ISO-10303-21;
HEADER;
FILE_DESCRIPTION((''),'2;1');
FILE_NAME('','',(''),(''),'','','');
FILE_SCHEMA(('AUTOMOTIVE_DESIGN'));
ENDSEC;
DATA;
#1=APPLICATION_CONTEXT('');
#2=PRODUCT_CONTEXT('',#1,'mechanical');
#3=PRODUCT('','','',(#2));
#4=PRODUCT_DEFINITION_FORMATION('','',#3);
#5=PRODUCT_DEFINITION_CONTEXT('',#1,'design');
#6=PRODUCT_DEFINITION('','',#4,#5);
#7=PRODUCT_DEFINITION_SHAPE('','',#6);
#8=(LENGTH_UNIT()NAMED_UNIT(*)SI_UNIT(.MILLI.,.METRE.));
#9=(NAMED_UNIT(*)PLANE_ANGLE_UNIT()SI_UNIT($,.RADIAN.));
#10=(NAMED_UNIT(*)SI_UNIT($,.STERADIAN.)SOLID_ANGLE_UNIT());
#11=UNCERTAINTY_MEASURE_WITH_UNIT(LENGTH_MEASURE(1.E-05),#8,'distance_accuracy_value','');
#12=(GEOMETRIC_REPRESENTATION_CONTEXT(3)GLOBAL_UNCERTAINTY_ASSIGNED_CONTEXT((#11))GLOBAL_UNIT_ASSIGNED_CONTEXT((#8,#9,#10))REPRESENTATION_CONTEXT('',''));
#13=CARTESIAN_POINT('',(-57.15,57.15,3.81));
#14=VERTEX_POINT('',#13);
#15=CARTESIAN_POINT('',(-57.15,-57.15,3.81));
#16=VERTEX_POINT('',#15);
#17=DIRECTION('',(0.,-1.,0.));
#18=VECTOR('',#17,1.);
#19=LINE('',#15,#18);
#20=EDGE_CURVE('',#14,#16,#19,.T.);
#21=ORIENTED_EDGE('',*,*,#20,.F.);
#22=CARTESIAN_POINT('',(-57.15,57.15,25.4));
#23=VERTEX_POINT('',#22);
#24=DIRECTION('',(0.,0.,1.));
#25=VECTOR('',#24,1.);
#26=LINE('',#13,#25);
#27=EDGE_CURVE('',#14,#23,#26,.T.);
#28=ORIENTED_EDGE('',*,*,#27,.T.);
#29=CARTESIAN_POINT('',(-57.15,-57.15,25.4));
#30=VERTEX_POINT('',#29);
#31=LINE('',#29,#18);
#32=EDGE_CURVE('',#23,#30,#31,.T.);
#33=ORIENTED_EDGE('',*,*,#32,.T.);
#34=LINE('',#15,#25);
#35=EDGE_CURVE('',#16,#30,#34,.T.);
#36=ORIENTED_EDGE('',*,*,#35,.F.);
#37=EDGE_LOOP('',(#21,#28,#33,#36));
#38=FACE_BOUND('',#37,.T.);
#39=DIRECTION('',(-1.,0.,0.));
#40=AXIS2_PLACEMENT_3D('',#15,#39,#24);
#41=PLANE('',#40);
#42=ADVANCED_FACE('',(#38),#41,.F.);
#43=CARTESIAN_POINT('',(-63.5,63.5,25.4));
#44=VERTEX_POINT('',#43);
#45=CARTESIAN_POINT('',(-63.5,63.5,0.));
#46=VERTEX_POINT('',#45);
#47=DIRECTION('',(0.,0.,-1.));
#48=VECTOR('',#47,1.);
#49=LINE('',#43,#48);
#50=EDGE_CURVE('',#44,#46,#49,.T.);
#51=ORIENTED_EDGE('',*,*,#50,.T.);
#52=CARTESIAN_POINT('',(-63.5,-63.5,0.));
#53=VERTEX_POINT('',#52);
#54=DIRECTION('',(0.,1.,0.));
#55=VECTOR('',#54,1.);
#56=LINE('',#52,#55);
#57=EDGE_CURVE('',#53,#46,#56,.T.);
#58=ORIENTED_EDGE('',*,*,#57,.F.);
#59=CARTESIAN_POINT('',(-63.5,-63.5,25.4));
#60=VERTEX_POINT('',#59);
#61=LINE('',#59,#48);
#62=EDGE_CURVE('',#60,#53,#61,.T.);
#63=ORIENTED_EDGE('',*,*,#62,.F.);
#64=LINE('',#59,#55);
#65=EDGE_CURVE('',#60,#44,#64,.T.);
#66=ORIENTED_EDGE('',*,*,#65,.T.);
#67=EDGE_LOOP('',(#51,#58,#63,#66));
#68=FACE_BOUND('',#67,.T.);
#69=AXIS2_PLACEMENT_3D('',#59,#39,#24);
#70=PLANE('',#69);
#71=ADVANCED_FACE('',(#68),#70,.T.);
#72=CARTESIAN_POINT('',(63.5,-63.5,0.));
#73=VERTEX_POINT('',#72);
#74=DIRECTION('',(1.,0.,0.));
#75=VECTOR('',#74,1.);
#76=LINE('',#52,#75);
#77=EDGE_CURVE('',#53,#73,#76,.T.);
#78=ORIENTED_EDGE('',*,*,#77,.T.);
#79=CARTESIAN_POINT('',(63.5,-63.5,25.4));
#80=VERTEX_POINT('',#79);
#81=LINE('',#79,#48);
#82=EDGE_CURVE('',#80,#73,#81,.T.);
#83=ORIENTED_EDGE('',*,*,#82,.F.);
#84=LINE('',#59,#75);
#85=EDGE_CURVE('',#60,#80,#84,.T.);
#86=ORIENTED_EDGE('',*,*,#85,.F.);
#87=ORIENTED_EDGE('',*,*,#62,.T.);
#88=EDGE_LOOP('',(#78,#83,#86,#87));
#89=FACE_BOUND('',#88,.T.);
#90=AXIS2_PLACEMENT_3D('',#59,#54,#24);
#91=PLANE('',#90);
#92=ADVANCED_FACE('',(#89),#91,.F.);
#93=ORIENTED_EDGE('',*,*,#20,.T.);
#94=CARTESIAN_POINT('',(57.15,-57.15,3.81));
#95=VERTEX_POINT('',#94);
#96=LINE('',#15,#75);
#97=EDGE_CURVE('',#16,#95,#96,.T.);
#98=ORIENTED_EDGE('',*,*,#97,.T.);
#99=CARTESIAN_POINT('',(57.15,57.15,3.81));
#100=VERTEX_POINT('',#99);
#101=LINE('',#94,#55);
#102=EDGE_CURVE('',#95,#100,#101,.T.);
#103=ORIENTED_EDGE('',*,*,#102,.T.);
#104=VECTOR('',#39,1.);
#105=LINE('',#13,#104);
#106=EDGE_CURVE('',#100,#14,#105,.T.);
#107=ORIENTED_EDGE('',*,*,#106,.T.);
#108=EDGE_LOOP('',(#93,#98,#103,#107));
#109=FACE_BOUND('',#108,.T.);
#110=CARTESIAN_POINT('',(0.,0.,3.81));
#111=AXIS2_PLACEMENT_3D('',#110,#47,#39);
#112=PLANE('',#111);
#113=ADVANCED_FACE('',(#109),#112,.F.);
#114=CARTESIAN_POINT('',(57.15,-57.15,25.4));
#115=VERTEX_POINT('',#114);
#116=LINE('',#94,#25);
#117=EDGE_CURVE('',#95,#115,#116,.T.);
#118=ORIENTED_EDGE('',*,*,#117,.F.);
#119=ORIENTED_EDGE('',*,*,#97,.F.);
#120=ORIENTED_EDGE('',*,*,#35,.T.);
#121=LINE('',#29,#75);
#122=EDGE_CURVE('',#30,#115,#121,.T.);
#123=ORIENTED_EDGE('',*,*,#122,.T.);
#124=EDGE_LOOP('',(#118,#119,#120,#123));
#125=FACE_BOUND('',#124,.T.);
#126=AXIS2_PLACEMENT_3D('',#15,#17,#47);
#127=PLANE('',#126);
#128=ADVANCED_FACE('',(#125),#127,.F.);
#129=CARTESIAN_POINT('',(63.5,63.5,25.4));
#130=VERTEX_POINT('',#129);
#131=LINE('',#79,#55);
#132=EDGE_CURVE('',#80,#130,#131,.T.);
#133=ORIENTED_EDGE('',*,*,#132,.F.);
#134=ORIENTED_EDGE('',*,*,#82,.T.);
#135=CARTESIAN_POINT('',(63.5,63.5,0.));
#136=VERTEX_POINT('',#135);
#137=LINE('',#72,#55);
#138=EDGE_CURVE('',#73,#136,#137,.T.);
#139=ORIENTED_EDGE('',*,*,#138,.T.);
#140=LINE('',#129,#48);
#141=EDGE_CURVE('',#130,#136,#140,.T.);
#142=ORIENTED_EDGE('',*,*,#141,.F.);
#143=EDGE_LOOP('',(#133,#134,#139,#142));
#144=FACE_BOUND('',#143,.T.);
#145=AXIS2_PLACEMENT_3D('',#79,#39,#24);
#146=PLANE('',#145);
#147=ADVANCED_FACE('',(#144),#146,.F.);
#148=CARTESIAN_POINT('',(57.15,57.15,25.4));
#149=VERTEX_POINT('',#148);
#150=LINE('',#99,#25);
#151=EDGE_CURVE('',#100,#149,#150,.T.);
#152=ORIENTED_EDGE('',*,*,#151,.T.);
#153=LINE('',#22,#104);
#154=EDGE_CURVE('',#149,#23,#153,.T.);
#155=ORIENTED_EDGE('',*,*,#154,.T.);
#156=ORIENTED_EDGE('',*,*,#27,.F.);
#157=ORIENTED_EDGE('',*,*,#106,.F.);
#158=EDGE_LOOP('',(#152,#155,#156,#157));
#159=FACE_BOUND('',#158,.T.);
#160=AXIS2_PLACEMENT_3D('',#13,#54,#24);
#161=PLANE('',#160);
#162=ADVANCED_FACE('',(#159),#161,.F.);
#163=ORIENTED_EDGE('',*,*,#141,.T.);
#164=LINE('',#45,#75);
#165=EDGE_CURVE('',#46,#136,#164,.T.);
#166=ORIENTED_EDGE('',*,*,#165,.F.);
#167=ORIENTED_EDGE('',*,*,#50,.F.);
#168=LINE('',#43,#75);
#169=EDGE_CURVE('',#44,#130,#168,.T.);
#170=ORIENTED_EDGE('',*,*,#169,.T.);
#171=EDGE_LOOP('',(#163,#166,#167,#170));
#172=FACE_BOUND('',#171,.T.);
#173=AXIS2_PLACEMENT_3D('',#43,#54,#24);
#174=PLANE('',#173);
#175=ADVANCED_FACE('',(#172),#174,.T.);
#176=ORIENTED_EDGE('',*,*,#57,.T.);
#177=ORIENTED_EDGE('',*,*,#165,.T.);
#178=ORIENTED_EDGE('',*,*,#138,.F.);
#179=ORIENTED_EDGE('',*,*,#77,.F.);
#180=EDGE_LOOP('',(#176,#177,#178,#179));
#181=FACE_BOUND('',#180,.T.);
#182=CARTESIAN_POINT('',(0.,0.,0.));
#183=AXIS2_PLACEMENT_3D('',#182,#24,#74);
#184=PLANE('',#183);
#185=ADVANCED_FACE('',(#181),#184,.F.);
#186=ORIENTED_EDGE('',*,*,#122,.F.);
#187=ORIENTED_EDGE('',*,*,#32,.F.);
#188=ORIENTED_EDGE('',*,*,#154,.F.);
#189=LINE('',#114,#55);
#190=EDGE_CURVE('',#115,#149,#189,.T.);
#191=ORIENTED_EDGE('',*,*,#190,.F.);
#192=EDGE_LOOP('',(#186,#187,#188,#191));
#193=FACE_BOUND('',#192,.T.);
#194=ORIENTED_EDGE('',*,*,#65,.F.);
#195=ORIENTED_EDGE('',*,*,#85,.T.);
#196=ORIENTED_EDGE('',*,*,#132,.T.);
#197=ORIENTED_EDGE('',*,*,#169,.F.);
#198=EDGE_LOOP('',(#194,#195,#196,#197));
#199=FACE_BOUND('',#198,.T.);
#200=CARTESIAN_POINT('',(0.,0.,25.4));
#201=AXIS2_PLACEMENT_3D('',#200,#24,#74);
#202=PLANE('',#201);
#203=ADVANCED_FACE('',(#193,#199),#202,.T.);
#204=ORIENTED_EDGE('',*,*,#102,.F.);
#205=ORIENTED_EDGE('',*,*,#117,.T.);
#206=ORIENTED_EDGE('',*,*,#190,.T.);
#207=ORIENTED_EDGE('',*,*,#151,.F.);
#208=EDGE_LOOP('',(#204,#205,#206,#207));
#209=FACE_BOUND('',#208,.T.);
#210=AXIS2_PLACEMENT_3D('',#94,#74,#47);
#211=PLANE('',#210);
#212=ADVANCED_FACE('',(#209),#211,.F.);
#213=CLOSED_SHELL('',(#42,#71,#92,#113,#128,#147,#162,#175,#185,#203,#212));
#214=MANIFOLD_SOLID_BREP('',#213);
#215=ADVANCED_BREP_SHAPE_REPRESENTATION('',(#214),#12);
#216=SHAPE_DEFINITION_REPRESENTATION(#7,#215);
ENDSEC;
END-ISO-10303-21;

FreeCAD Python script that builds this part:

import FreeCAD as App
import Part
import Sketcher
from FreeCAD import Vector
Q = App.Units.Quantity

doc = App.newDocument("Part")
body = doc.addObject("PartDesign::Body", "Body")

# Sketch on XY plane
sketch1 = doc.addObject("Sketcher::SketchObject", "Sketch")
body.addObject(sketch1)
sketch1.AttachmentSupport = (doc.XY_Plane, [""])
sketch1.MapMode = "FlatFace"
sketch1.addGeometry(Part.LineSegment(Vector(-63.5, 63.5, 0), Vector(-63.5, -63.5, 0)), False)
sketch1.addGeometry(Part.LineSegment(Vector(-63.5, -63.5, 0), Vector(63.5, -63.5, 0)), False)
sketch1.addGeometry(Part.LineSegment(Vector(63.5, -63.5, 0), Vector(63.5, 63.5, 0)), False)
sketch1.addGeometry(Part.LineSegment(Vector(63.5, 63.5, 0), Vector(-63.5, 63.5, 0)), False)
sketch1.addConstraint(Sketcher.Constraint("Coincident", 0, 2, 1, 1))
sketch1.addConstraint(Sketcher.Constraint("Coincident", 1, 2, 2, 1))
sketch1.addConstraint(Sketcher.Constraint("Coincident", 2, 2, 3, 1))
sketch1.addConstraint(Sketcher.Constraint("Coincident", 3, 2, 0, 1))
sketch1.addConstraint(Sketcher.Constraint("Vertical", 0))
sketch1.addConstraint(Sketcher.Constraint("Horizontal", 1))
sketch1.addConstraint(Sketcher.Constraint("Vertical", 2))
sketch1.addConstraint(Sketcher.Constraint("Horizontal", 3))
sketch1.addConstraint(Sketcher.Constraint("Symmetric", 0, 2, 2, 2, -1, 1))
sketch1.addConstraint(Sketcher.Constraint("Equal", 3, 0))
sketch1.addConstraint(Sketcher.Constraint("DistanceX", 1, 1, 1, 2, Q("5 in")))
pad1 = doc.addObject("PartDesign::Pad", "Pad")
body.addObject(pad1)
pad1.Profile = sketch1
pad1.Length = Q("1 in")

# Sketch on XY plane
sketch2 = doc.addObject("Sketcher::SketchObject", "Sketch001")
body.addObject(sketch2)
sketch2.AttachmentSupport = (doc.XY_Plane, [""])
sketch2.MapMode = "FlatFace"
sketch2.AttachmentOffset = App.Placement(Vector(0, 0, 1 * 25.4), App.Rotation())
sketch2.addGeometry(Part.LineSegment(Vector(-57.15, 57.15, 0), Vector(-57.15, -57.15, 0)), False)
sketch2.addGeometry(Part.LineSegment(Vector(-57.15, -57.15, 0), Vector(57.15, -57.15, 0)), False)
sketch2.addGeometry(Part.LineSegment(Vector(57.15, -57.15, 0), Vector(57.15, 57.15, 0)), False)
sketch2.addGeometry(Part.LineSegment(Vector(57.15, 57.15, 0), Vector(-57.15, 57.15, 0)), False)
sketch2.addConstraint(Sketcher.Constraint("Coincident", 0, 2, 1, 1))
sketch2.addConstraint(Sketcher.Constraint("Coincident", 1, 2, 2, 1))
sketch2.addConstraint(Sketcher.Constraint("Coincident", 2, 2, 3, 1))
sketch2.addConstraint(Sketcher.Constraint("Coincident", 3, 2, 0, 1))
sketch2.addConstraint(Sketcher.Constraint("Vertical", 0))
sketch2.addConstraint(Sketcher.Constraint("Horizontal", 1))
sketch2.addConstraint(Sketcher.Constraint("Vertical", 2))
sketch2.addConstraint(Sketcher.Constraint("Horizontal", 3))
sketch2.addConstraint(Sketcher.Constraint("Symmetric", 0, 2, 2, 2, -1, 1))
sketch2.addConstraint(Sketcher.Constraint("Equal", 3, 0))
sketch2.addConstraint(Sketcher.Constraint("DistanceX", 1, 1, 1, 2, Q("4.5 in")))
pocket1 = doc.addObject("PartDesign::Pocket", "Pocket")
body.addObject(pocket1)
pocket1.Profile = sketch2
pocket1.Length = Q("0.85 in")

doc.recompute()
